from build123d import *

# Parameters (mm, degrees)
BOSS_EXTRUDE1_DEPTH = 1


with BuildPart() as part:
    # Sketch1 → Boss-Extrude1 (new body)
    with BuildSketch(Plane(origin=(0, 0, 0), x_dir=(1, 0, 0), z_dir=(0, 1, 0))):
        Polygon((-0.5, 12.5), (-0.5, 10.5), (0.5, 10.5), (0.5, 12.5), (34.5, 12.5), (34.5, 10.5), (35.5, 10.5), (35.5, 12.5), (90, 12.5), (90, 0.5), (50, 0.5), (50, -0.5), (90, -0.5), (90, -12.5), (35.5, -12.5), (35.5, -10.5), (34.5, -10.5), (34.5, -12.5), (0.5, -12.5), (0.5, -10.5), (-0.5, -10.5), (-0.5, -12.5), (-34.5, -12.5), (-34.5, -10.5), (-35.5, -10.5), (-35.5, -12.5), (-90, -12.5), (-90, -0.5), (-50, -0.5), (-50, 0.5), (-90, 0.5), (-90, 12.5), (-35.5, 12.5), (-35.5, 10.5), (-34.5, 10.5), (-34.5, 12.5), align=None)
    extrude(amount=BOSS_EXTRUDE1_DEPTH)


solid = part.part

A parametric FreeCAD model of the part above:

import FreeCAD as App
import Part
import Sketcher
Q = App.Units.Quantity


def add_polygon(sketch, points):
    """Adds a closed chain of lines whose ends are joined by coincident constraints."""
    first, n = sketch.GeometryCount, len(points)
    for a, b in zip(points, points[1:] + points[:1]):
        sketch.addGeometry(Part.LineSegment(App.Vector(*a, 0), App.Vector(*b, 0)), False)
    for i in range(n):
        sketch.addConstraint(Sketcher.Constraint("Coincident", first + i, 2, first + (i + 1) % n, 1))

doc = App.newDocument("Part")
params = doc.addObject("Spreadsheet::Sheet", "Params")
for row, (alias, value) in enumerate([
    ("sketch1_width", "34 mm"),
    ("sketch1_width2", "1 mm"),
    ("sketch1_width3", "40 mm"),
    ("sketch1_height", "2 mm"),
    ("sketch1_height2", "12 mm"),
    ("pad1_length", "1 mm"),
], start=1):
    params.set(f"A{row}", alias)
    params.set(f"B{row}", "=" + value)
    params.setAlias(f"B{row}", alias)

body = doc.addObject("PartDesign::Body", "Body")

# Sketch on XZ plane
sketch1 = body.newObject("Sketcher::SketchObject", "Sketch")
sketch1.AttachmentSupport = (doc.getObject("XZ_Plane"), [""])
sketch1.MapMode = "FlatFace"
add_polygon(sketch1, [(-0.5, -10.5), (-0.5, -12.5), (-34.5, -12.5), (-34.5, -10.5), (-35.5, -10.5), (-35.5, -12.5), (-90, -12.5), (-90, -0.5), (-50, -0.5), (-50, 0.5), (-90, 0.5), (-90, 12.5), (-35.5, 12.5), (-35.5, 10.5), (-34.5, 10.5), (-34.5, 12.5), (-0.5, 12.5), (-0.5, 10.5), (0.5, 10.5), (0.5, 12.5), (34.5, 12.5), (34.5, 10.5), (35.5, 10.5), (35.5, 12.5), (90, 12.5), (90, 0.5), (50, 0.5), (50, -0.5), (90, -0.5), (90, -12.5), (35.5, -12.5), (35.5, -10.5), (34.5, -10.5), (34.5, -12.5), (0.5, -12.5), (0.5, -10.5)])  # lines 0-35
sketch1.addConstraint([
    Sketcher.Constraint("Vertical", 0),
    Sketcher.Constraint("Horizontal", 1),
    Sketcher.Constraint("Vertical", 2),
    Sketcher.Constraint("Horizontal", 3),
    Sketcher.Constraint("Vertical", 4),
    Sketcher.Constraint("Horizontal", 5),
    Sketcher.Constraint("Vertical", 6),
    Sketcher.Constraint("Horizontal", 7),
    Sketcher.Constraint("Vertical", 8),
    Sketcher.Constraint("Horizontal", 9),
    Sketcher.Constraint("Vertical", 10),
    Sketcher.Constraint("Horizontal", 11),
    Sketcher.Constraint("Vertical", 12),
    Sketcher.Constraint("Horizontal", 13),
    Sketcher.Constraint("Vertical", 14),
    Sketcher.Constraint("Horizontal", 15),
    Sketcher.Constraint("Vertical", 16),
    Sketcher.Constraint("Horizontal", 17),
    Sketcher.Constraint("Vertical", 18),
    Sketcher.Constraint("Horizontal", 19),
    Sketcher.Constraint("Vertical", 20),
    Sketcher.Constraint("Horizontal", 21),
    Sketcher.Constraint("Vertical", 22),
    Sketcher.Constraint("Horizontal", 23),
    Sketcher.Constraint("Vertical", 24),
    Sketcher.Constraint("Horizontal", 25),
    Sketcher.Constraint("Vertical", 26),
    Sketcher.Constraint("Horizontal", 27),
    Sketcher.Constraint("Vertical", 28),
    Sketcher.Constraint("Horizontal", 29),
    Sketcher.Constraint("Vertical", 30),
    Sketcher.Constraint("Horizontal", 31),
    Sketcher.Constraint("Vertical", 32),
    Sketcher.Constraint("Horizontal", 33),
    Sketcher.Constraint("Vertical", 34),
    Sketcher.Constraint("Horizontal", 35),
    Sketcher.Constraint("Symmetric", 0, 2, 18, 2, -1, 1),
    Sketcher.Constraint("Symmetric", 2, 2, 20, 2, -1, 1),
    Sketcher.Constraint("Symmetric", 4, 2, 22, 2, -1, 1),
    Sketcher.Constraint("Symmetric", 6, 2, 24, 2, -1, 1),
    Sketcher.Constraint("Symmetric", 8, 2, 26, 2, -1, 1),
    Sketcher.Constraint("Symmetric", 10, 2, 28, 2, -1, 1),
    Sketcher.Constraint("Symmetric", 12, 2, 30, 2, -1, 1),
    Sketcher.Constraint("Symmetric", 14, 2, 32, 2, -1, 1),
    Sketcher.Constraint("Symmetric", 16, 2, 34, 2, -1, 1),
    Sketcher.Constraint("Symmetric", 15, 2, 18, 2, -2),
    Sketcher.Constraint("Symmetric", 13, 2, 20, 2, -2),
    Sketcher.Constraint("Symmetric", 11, 2, 22, 2, -2),
    Sketcher.Constraint("Symmetric", 9, 2, 24, 2, -2),
    Sketcher.Constraint("Horizontal", 1, 2, 4, 2),
    Sketcher.Constraint("Horizontal", 13, 2, 16, 2),
    Sketcher.Constraint("Equal", 13, 17),
    Sketcher.Constraint("Equal", 35, 8),
    Sketcher.Constraint("DistanceX", 1, 2, 1, 1, Q("34 mm")),
    Sketcher.Constraint("DistanceX", 3, 2, 3, 1, Q("1 mm")),
    Sketcher.Constraint("DistanceX", 7, 1, 7, 2, Q("40 mm")),
    Sketcher.Constraint("DistanceY", 0, 2, 0, 1, Q("2 mm")),
    Sketcher.Constraint("DistanceY", 6, 1, 6, 2, Q("12 mm")),
    Sketcher.Constraint("DistanceX", 5, 2, 5, 1, Q("54.5 mm")),
])
sketch1.setExpression("Constraints[89]", "Params.sketch1_width")
sketch1.setExpression("Constraints[90]", "Params.sketch1_width2")
sketch1.setExpression("Constraints[91]", "Params.sketch1_width3")
sketch1.setExpression("Constraints[92]", "Params.sketch1_height")
sketch1.setExpression("Constraints[93]", "Params.sketch1_height2")
pad1 = body.newObject("PartDesign::Pad", "Pad")
pad1.Profile = sketch1
pad1.setExpression("Length", "Params.pad1_length")
pad1.Reversed = True

doc.recompute()
